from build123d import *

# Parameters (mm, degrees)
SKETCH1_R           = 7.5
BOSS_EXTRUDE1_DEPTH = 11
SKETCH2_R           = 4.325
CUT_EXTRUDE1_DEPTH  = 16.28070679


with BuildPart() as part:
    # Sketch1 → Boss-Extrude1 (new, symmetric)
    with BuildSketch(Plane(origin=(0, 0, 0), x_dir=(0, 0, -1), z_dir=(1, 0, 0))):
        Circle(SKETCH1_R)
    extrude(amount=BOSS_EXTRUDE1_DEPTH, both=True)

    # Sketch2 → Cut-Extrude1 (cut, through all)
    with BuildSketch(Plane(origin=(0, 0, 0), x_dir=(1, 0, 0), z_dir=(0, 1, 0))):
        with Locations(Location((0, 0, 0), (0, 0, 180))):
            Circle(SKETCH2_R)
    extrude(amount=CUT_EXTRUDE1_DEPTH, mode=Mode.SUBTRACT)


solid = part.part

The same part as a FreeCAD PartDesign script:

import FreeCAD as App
import Part
import Sketcher

V = App.Vector
Q = App.Units.Quantity

doc = App.newDocument("Part")
body = doc.addObject("PartDesign::Body", "Body")

# Sketch on YZ plane
sketch1 = doc.addObject("Sketcher::SketchObject", "Sketch")
body.addObject(sketch1)
sketch1.AttachmentSupport = (doc.YZ_Plane, [""])
sketch1.MapMode = "FlatFace"
sketch1.addGeometry(Part.Circle(V(0, 0, 0), V(0, 0, 1), 8), False)
sketch1.addConstraint(Sketcher.Constraint("Coincident", 0, 3, -1, 1))
sketch1.addConstraint(Sketcher.Constraint("Diameter", 0, Q("15 mm")))
pad1 = doc.addObject("PartDesign::Pad", "Pad")
body.addObject(pad1)
pad1.Profile = sketch1
pad1.Length = 22
pad1.Midplane = True

# Sketch on XZ plane
sketch2 = doc.addObject("Sketcher::SketchObject", "Sketch001")
body.addObject(sketch2)
sketch2.AttachmentSupport = (doc.XZ_Plane, [""])
sketch2.MapMode = "FlatFace"
sketch2.addGeometry(Part.Circle(V(0, 0, 0), V(0, 0, 1), 4.3), False)
sketch2.addConstraint(Sketcher.Constraint("Coincident", 0, 3, -1, 1))
sketch2.addConstraint(Sketcher.Constraint("Diameter", 0, Q("8.65 mm")))
pocket1 = doc.addObject("PartDesign::Pocket", "Pocket")
body.addObject(pocket1)
pocket1.Profile = sketch2
pocket1.Type = "ThroughAll"

doc.recompute()
